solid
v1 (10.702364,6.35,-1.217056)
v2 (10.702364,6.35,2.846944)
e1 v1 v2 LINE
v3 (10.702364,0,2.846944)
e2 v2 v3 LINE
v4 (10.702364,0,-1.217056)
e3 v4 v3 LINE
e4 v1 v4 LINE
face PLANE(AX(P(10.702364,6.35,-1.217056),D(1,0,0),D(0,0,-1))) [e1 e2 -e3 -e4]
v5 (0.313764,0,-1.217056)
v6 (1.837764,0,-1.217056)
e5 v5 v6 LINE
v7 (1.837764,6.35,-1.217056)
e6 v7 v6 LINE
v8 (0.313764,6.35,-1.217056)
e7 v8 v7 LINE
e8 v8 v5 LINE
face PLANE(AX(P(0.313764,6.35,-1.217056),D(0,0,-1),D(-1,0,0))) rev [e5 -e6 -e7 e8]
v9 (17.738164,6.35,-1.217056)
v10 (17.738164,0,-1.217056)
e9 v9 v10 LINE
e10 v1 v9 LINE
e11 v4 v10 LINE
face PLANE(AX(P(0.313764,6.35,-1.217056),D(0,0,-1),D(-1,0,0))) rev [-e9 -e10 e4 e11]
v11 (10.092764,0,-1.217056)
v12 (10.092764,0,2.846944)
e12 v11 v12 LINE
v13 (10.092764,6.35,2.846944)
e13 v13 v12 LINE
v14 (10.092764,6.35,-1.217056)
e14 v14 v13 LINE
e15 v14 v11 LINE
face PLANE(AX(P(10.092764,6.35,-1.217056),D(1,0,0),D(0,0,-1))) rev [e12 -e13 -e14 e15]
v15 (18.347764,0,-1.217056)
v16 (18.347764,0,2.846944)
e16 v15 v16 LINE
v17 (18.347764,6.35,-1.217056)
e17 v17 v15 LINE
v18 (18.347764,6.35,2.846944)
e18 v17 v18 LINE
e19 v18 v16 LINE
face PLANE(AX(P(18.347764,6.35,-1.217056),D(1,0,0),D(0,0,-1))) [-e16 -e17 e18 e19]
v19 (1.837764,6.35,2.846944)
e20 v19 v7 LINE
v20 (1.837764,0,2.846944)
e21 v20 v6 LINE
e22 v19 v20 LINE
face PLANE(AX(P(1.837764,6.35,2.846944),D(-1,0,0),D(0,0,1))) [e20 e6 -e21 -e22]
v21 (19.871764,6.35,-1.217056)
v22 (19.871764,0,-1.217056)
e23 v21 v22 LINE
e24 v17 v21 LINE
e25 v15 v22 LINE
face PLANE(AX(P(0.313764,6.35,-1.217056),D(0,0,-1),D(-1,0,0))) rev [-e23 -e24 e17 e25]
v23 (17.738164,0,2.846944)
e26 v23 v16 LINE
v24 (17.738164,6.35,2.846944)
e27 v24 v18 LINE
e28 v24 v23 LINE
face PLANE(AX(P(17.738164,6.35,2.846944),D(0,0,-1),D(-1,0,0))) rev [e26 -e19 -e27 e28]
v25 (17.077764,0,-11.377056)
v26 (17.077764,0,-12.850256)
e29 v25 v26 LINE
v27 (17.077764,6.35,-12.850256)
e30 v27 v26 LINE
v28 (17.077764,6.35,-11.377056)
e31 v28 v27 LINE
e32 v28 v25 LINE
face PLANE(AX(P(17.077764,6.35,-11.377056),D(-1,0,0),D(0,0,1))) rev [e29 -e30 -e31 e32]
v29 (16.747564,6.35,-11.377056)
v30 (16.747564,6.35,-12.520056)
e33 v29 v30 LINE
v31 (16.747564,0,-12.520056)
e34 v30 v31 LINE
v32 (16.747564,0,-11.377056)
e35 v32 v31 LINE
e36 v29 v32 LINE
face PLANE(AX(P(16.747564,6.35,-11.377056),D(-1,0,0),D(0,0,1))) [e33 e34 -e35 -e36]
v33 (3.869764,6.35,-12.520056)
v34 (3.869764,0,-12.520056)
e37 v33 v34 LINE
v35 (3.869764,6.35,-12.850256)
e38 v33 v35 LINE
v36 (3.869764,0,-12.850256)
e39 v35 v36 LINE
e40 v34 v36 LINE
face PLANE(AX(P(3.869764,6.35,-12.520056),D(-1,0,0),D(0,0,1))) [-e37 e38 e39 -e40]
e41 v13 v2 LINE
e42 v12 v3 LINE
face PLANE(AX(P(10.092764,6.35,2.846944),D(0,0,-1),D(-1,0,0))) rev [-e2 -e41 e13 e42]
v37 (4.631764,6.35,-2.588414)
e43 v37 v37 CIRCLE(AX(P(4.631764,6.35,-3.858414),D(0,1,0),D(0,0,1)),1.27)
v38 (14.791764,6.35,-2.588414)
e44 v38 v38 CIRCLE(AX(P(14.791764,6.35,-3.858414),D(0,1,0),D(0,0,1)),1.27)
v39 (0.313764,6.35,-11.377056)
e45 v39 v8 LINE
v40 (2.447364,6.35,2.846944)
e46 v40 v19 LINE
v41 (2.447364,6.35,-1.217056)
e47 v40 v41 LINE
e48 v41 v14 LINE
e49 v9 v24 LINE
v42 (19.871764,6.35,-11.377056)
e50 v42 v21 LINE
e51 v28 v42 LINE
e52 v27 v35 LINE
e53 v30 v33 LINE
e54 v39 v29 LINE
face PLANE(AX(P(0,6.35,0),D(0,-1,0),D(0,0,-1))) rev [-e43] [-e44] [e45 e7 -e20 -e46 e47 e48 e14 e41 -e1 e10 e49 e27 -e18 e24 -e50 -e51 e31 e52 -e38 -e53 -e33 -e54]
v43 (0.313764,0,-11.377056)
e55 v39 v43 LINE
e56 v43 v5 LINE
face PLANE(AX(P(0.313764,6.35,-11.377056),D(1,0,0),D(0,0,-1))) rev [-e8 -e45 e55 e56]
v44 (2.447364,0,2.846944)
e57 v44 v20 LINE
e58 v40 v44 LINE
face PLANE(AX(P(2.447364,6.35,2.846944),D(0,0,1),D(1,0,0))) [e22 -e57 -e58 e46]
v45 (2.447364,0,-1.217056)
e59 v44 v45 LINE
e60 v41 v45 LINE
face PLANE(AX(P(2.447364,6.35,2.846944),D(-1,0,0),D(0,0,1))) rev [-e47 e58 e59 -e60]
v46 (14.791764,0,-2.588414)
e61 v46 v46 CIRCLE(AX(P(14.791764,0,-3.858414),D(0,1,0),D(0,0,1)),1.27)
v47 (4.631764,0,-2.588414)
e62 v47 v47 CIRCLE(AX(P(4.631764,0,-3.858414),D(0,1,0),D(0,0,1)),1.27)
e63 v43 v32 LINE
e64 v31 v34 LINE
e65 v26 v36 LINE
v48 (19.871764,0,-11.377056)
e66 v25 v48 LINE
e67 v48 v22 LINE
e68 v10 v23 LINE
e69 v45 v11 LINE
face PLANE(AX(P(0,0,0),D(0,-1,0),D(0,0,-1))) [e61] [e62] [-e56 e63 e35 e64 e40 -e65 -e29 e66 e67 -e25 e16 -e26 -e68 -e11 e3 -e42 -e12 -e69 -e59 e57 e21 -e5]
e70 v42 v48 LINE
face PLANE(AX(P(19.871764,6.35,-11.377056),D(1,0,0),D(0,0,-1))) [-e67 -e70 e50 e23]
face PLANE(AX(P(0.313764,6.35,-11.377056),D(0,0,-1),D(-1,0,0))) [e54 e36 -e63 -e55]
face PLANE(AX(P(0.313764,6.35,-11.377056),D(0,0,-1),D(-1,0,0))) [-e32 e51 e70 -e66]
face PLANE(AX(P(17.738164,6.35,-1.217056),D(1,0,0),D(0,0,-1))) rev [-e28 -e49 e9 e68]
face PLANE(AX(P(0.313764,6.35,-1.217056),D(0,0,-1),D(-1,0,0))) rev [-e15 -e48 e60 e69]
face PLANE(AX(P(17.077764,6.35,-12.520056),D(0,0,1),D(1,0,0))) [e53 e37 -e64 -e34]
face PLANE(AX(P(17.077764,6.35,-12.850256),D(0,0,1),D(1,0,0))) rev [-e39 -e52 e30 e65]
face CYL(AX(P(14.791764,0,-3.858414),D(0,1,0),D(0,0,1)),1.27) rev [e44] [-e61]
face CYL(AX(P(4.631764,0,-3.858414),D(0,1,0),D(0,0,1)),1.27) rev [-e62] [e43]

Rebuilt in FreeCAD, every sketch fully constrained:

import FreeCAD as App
import Part
import Sketcher
Q = App.Units.Quantity


def add_polygon(sketch, points):
    """Adds a closed chain of lines whose ends are joined by coincident constraints."""
    first, n = sketch.GeometryCount, len(points)
    for a, b in zip(points, points[1:] + points[:1]):
        sketch.addGeometry(Part.LineSegment(App.Vector(*a, 0), App.Vector(*b, 0)), False)
    for i in range(n):
        sketch.addConstraint(Sketcher.Constraint("Coincident", first + i, 2, first + (i + 1) % n, 1))

doc = App.newDocument("Part")
body = doc.addObject("PartDesign::Body", "Body")

# Sketch on XZ plane
sketch1 = doc.addObject("Sketcher::SketchObject", "Sketch")
body.addObject(sketch1)
sketch1.AttachmentSupport = (doc.XZ_Plane, [""])
sketch1.MapMode = "FlatFace"
add_polygon(sketch1, [(0.313764, -11.377056), (0.313764, -1.217056), (1.837764, -1.217056), (1.837764, 2.846944), (2.447364, 2.846944), (2.447364, -1.217056), (10.092764, -1.217056), (10.092764, 2.846944), (10.702364, 2.846944), (10.702364, -1.217056), (17.738164, -1.217056), (17.738164, 2.846944), (18.347764, 2.846944), (18.347764, -1.217056), (19.871764, -1.217056), (19.871764, -11.377056)])  # lines 0-15
sketch1.addConstraint(Sketcher.Constraint("Vertical", 0))
sketch1.addConstraint(Sketcher.Constraint("Horizontal", 1))
sketch1.addConstraint(Sketcher.Constraint("Vertical", 2))
sketch1.addConstraint(Sketcher.Constraint("Horizontal", 3))
sketch1.addConstraint(Sketcher.Constraint("Vertical", 4))
sketch1.addConstraint(Sketcher.Constraint("Horizontal", 5))
sketch1.addConstraint(Sketcher.Constraint("Vertical", 6))
sketch1.addConstraint(Sketcher.Constraint("Horizontal", 7))
sketch1.addConstraint(Sketcher.Constraint("Vertical", 8))
sketch1.addConstraint(Sketcher.Constraint("Horizontal", 9))
sketch1.addConstraint(Sketcher.Constraint("Vertical", 10))
sketch1.addConstraint(Sketcher.Constraint("Horizontal", 11))
sketch1.addConstraint(Sketcher.Constraint("Vertical", 12))
sketch1.addConstraint(Sketcher.Constraint("Horizontal", 13))
sketch1.addConstraint(Sketcher.Constraint("Vertical", 14))
sketch1.addConstraint(Sketcher.Constraint("Horizontal", 15))
sketch1.addConstraint(Sketcher.Constraint("Horizontal", 1, 2, 4, 2))
sketch1.addConstraint(Sketcher.Constraint("Horizontal", 3, 2, 6, 2))
sketch1.addConstraint(Sketcher.Constraint("Horizontal", 5, 2, 8, 2))
sketch1.addConstraint(Sketcher.Constraint("Horizontal", 7, 2, 10, 2))
sketch1.addConstraint(Sketcher.Constraint("Horizontal", 9, 2, 12, 2))
sketch1.addConstraint(Sketcher.Constraint("Equal", 3, 7))
sketch1.addConstraint(Sketcher.Constraint("Equal", 7, 11))
sketch1.addConstraint(Sketcher.Constraint("Equal", 1, 13))
sketch1.addConstraint(Sketcher.Constraint("DistanceY", 0, 1, 0, 2, Q("0.4 in")))
sketch1.addConstraint(Sketcher.Constraint("DistanceX", 1, 1, 1, 2, Q("0.06 in")))
sketch1.addConstraint(Sketcher.Constraint("DistanceX", 15, 2, 15, 1, Q("0.77 in")))
sketch1.addConstraint(Sketcher.Constraint("DistanceY", 2, 1, 2, 2, Q("0.16 in")))
sketch1.addConstraint(Sketcher.Constraint("DistanceX", 3, 1, 3, 2, Q("0.024 in")))
sketch1.addConstraint(Sketcher.Constraint("DistanceX", 5, 1, 5, 2, Q("0.301 in")))
sketch1.addConstraint(Sketcher.Constraint("DistanceX", -1, 1, 0, 2, 0.313764))
sketch1.addConstraint(Sketcher.Constraint("DistanceY", 0, 2, -1, 1, 1.217056))
pad1 = doc.addObject("PartDesign::Pad", "Pad")
body.addObject(pad1)
pad1.Profile = sketch1
pad1.Length = Q("0.25 in")
pad1.Reversed = True

# Sketch on XZ plane
sketch2 = doc.addObject("Sketcher::SketchObject", "Sketch001")
body.addObject(sketch2)
sketch2.AttachmentSupport = (doc.XZ_Plane, [""])
sketch2.MapMode = "FlatFace"
sketch2.AttachmentOffset = App.Placement(App.Vector(0, 0, -0.25 * 25.4), App.Rotation())
sketch2.addGeometry(Part.Circle(App.Vector(4.631764, -3.858414, 0), App.Vector(0, 0, 1), 1.27), False)
sketch2.addGeometry(Part.Circle(App.Vector(14.791764, -3.858414, 0), App.Vector(0, 0, 1), 1.27), False)
sketch2.addConstraint(Sketcher.Constraint("Equal", 0, 1))
sketch2.addConstraint(Sketcher.Constraint("Horizontal", 0, 3, 1, 3))
sketch2.addConstraint(Sketcher.Constraint("Diameter", 0, Q("0.1 in")))
sketch2.addConstraint(Sketcher.Constraint("DistanceX", 0, 3, 1, 3, Q("0.4 in")))
sketch2.addConstraint(Sketcher.Constraint("DistanceX", -1, 1, 0, 3, 4.631764))
sketch2.addConstraint(Sketcher.Constraint("DistanceY", 0, 3, -1, 1, 3.858414))
pocket1 = doc.addObject("PartDesign::Pocket", "Pocket")
body.addObject(pocket1)
pocket1.Profile = sketch2
pocket1.Length = Q("0.25 in")
pocket1.Reversed = True

# Sketch on XZ plane
sketch3 = doc.addObject("Sketcher::SketchObject", "Sketch002")
body.addObject(sketch3)
sketch3.AttachmentSupport = (doc.XZ_Plane, [""])
sketch3.MapMode = "FlatFace"
add_polygon(sketch3, [(16.747564, -12.520056), (16.747564, -11.377056), (17.077764, -11.377056), (17.077764, -12.850256), (3.869764, -12.850256), (3.869764, -12.520056)])  # lines 0-5
sketch3.addConstraint(Sketcher.Constraint("Vertical", 0))
sketch3.addConstraint(Sketcher.Constraint("Horizontal", 1))
sketch3.addConstraint(Sketcher.Constraint("Vertical", 2))
sketch3.addConstraint(Sketcher.Constraint("Horizontal", 3))
sketch3.addConstraint(Sketcher.Constraint("Vertical", 4))
sketch3.addConstraint(Sketcher.Constraint("Horizontal", 5))
sketch3.addConstraint(Sketcher.Constraint("Equal", 1, 4))
sketch3.addConstraint(Sketcher.Constraint("DistanceX", 3, 2, 3, 1, Q("0.52 in")))
sketch3.addConstraint(Sketcher.Constraint("DistanceX", 1, 1, 1, 2, Q("0.013 in")))
sketch3.addConstraint(Sketcher.Constraint("DistanceY", 0, 1, 0, 2, Q("0.045 in")))
sketch3.addConstraint(Sketcher.Constraint("DistanceX", -1, 1, 0, 2, 16.747564))
sketch3.addConstraint(Sketcher.Constraint("DistanceY", 0, 2, -1, 1, 11.377056))
pad2 = doc.addObject("PartDesign::Pad", "Pad001")
body.addObject(pad2)
pad2.Profile = sketch3
pad2.Length = Q("0.25 in")
pad2.Reversed = True

doc.recompute()
